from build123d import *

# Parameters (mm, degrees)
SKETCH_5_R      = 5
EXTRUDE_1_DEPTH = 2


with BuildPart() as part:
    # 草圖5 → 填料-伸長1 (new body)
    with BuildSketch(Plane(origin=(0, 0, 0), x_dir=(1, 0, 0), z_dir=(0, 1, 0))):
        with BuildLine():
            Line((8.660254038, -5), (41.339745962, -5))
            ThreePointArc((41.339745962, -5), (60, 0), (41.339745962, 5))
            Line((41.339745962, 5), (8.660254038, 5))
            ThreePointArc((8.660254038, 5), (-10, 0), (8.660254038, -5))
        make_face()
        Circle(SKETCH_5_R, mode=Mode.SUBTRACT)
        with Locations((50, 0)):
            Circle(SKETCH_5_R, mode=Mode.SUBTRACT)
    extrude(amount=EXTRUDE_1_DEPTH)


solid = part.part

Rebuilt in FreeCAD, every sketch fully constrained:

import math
import FreeCAD as App
import Part
import Sketcher

V = App.Vector
Q = App.Units.Quantity

doc = App.newDocument("Part")
body = doc.addObject("PartDesign::Body", "Body")

sketch1 = doc.addObject("Sketcher::SketchObject", "Sketch")
body.addObject(sketch1)
sketch1.AttachmentSupport = (doc.XZ_Plane, [""])
sketch1.MapMode = "FlatFace"
sketch1.addGeometry([
    Part.LineSegment(V(9, 5, 0), V(41, 5, 0)),
    Part.ArcOfCircle(Part.Circle(V(50, 0, 0), V(0, 0, 1), 10), math.radians(-150), math.radians(150)),
    Part.LineSegment(V(41, -5, 0), V(9, -5, 0)),
    Part.ArcOfCircle(Part.Circle(V(0, 0, 0), V(0, 0, 1), 10), math.radians(30), math.radians(330)),
    Part.Circle(V(0, 0, 0), V(0, 0, 1), 5),
    Part.Circle(V(50, 0, 0), V(0, 0, 1), 5),
], False)
sketch1.addConstraint([
    Sketcher.Constraint("Coincident", 0, 2, 1, 2),
    Sketcher.Constraint("Coincident", 1, 1, 2, 1),
    Sketcher.Constraint("Coincident", 2, 2, 3, 2),
    Sketcher.Constraint("Coincident", 3, 1, 0, 1),
    Sketcher.Constraint("Horizontal", 0),
    Sketcher.Constraint("Horizontal", 2),
    Sketcher.Constraint("Coincident", 3, 3, -1, 1),
    Sketcher.Constraint("Coincident", 4, 3, -1, 1),
    Sketcher.Constraint("Coincident", 5, 3, 1, 3),
    Sketcher.Constraint("Equal", 1, 3),
    Sketcher.Constraint("Equal", 4, 5),
    Sketcher.Constraint("Symmetric", 0, 2, 1, 1, -1),
    Sketcher.Constraint("Diameter", 4, Q("10 mm")),
    Sketcher.Constraint("Radius", 1, Q("10 mm")),
    Sketcher.Constraint("DistanceX", -1, 1, 1, 3, Q("50 mm")),
    Sketcher.Constraint("DistanceY", -1, 1, 0, 2, Q("5 mm")),
])
pad1 = doc.addObject("PartDesign::Pad", "Pad")
body.addObject(pad1)
pad1.Profile = sketch1
pad1.Length = 2
pad1.Reversed = True

doc.recompute()
